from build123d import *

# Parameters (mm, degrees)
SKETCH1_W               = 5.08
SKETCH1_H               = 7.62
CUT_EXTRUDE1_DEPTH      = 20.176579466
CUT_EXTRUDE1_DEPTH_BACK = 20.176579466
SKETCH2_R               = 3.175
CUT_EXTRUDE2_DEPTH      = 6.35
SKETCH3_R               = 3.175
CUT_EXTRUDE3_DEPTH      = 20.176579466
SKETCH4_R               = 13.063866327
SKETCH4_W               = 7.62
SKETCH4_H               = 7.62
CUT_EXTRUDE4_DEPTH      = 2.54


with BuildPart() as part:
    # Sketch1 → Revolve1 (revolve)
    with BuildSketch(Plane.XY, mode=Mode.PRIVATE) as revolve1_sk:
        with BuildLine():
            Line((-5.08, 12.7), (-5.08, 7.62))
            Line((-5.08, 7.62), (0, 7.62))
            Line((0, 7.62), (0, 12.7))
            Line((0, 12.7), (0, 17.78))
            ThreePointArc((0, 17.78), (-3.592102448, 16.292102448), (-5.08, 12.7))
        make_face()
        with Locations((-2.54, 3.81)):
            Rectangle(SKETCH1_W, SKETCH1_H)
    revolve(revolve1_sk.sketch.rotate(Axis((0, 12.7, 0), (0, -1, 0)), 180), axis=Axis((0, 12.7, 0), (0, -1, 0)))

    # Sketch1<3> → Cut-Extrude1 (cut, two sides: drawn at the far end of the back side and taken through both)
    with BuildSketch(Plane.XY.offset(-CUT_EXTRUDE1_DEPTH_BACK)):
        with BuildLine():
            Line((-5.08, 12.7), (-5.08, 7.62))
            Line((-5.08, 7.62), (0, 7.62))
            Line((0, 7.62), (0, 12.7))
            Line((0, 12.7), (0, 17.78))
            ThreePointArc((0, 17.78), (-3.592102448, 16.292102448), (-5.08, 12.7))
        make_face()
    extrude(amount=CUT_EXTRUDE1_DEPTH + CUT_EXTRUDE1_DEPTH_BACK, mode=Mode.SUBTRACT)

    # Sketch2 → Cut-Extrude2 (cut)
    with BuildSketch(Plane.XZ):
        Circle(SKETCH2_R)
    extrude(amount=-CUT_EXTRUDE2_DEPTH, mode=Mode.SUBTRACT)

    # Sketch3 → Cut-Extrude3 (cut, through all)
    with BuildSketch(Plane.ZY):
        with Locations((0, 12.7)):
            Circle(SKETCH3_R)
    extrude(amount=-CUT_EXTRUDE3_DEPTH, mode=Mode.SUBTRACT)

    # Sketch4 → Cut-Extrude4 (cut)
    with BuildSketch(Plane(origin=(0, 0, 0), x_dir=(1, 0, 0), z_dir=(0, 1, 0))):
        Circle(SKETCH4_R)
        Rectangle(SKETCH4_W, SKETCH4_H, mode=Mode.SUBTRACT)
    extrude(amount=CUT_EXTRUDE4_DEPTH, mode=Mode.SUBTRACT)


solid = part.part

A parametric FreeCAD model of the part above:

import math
import FreeCAD as App
import Part
import Sketcher
Q = App.Units.Quantity

doc = App.newDocument("Part")
params = doc.addObject("Spreadsheet::Sheet", "Params")
for row, (alias, value) in enumerate([
    ("sketch1_radius", "0.2 in"),
    ("sketch1_height", "0.5 in"),
    ("revolution_angle", "360 deg"),
    ("sketch2_radius", "0.2 in"),
    ("sketch3_diameter", "0.25 in"),
    ("pocket2_length", "0.25 in"),
    ("sketch4_diameter", "0.25 in"),
    ("sketch5_width", "0.3 in"),
    ("pocket4_length", "0.1 in"),
], start=1):
    params.set(f"A{row}", alias)
    params.set(f"B{row}", "=" + value)
    params.setAlias(f"B{row}", alias)

body = doc.addObject("PartDesign::Body", "Body")

# Sketch on XY plane
sketch1 = body.newObject("Sketcher::SketchObject", "Sketch")
sketch1.AttachmentSupport = (doc.getObject("XY_Plane"), [""])
sketch1.MapMode = "FlatFace"
sketch1.addGeometry(Part.LineSegment(App.Vector(-5.08, 12.7, 0), App.Vector(-5.08, 0, 0)), False)
sketch1.addGeometry(Part.LineSegment(App.Vector(-5.08, 0, 0), App.Vector(0, 0, 0)), False)
sketch1.addGeometry(Part.LineSegment(App.Vector(0, 0, 0), App.Vector(0, 17.78, 0)), False)
sketch1.addGeometry(Part.ArcOfCircle(Part.Circle(App.Vector(0, 12.7, 0), App.Vector(0, 0, 1), 5.08), math.radians(90), math.radians(180)), False)
sketch1.addConstraint(Sketcher.Constraint("Coincident", 0, 2, 1, 1))
sketch1.addConstraint(Sketcher.Constraint("Coincident", 1, 2, 2, 1))
sketch1.addConstraint(Sketcher.Constraint("Coincident", 2, 2, 3, 1))
sketch1.addConstraint(Sketcher.Constraint("Tangent", 3, 2, 0, 1))
sketch1.addConstraint(Sketcher.Constraint("Vertical", 0))
sketch1.addConstraint(Sketcher.Constraint("Horizontal", 1))
sketch1.addConstraint(Sketcher.Constraint("Vertical", 2))
sketch1.addConstraint(Sketcher.Constraint("Coincident", 1, 2, -1, 1))
sketch1.addConstraint(Sketcher.Constraint("PointOnObject", 3, 3, -2))
sketch1.addConstraint(Sketcher.Constraint("Radius", 3, Q("0.2 in")))
sketch1.addConstraint(Sketcher.Constraint("DistanceY", 0, 2, 0, 1, Q("0.5 in")))
sketch1.setExpression("Constraints[9]", "Params.sketch1_radius")
sketch1.setExpression("Constraints[10]", "Params.sketch1_height")
revolution = body.newObject("PartDesign::Revolution", "Revolution")
revolution.Profile = sketch1
revolution.ReferenceAxis = (sketch1, ["V_Axis"])
revolution.setExpression("Angle", "Params.revolution_angle")

# Sketch on XY plane
sketch2 = body.newObject("Sketcher::SketchObject", "Sketch001")
sketch2.AttachmentSupport = (doc.getObject("XY_Plane"), [""])
sketch2.MapMode = "FlatFace"
sketch2.addGeometry(Part.LineSegment(App.Vector(-5.08, 12.7, 0), App.Vector(-5.08, 7.62, 0)), False)
sketch2.addGeometry(Part.LineSegment(App.Vector(-5.08, 7.62, 0), App.Vector(0, 7.62, 0)), False)
sketch2.addGeometry(Part.LineSegment(App.Vector(0, 7.62, 0), App.Vector(0, 17.78, 0)), False)
sketch2.addGeometry(Part.ArcOfCircle(Part.Circle(App.Vector(0, 12.7, 0), App.Vector(0, 0, 1), 5.08), math.radians(90), math.radians(180)), False)
sketch2.addConstraint(Sketcher.Constraint("Coincident", 0, 2, 1, 1))
sketch2.addConstraint(Sketcher.Constraint("Coincident", 1, 2, 2, 1))
sketch2.addConstraint(Sketcher.Constraint("Coincident", 2, 2, 3, 1))
sketch2.addConstraint(Sketcher.Constraint("Tangent", 3, 2, 0, 1))
sketch2.addConstraint(Sketcher.Constraint("Vertical", 0))
sketch2.addConstraint(Sketcher.Constraint("Horizontal", 1))
sketch2.addConstraint(Sketcher.Constraint("Vertical", 2))
sketch2.addConstraint(Sketcher.Constraint("PointOnObject", 3, 3, -2))
sketch2.addConstraint(Sketcher.Constraint("PointOnObject", 1, 2, -2))
sketch2.addConstraint(Sketcher.Constraint("Equal", 1, 0))
sketch2.addConstraint(Sketcher.Constraint("Radius", 3, Q("0.2 in")))
sketch2.addConstraint(Sketcher.Constraint("DistanceY", -1, 1, 3, 3, Q("0.5 in")))
sketch2.setExpression("Constraints[10]", "Params.sketch2_radius")
pocket1 = body.newObject("PartDesign::Pocket", "Pocket")
pocket1.Profile = sketch2
pocket1.Type = "ThroughAll"
pocket1.Midplane = True

# Sketch on XZ plane
sketch3 = body.newObject("Sketcher::SketchObject", "Sketch002")
sketch3.AttachmentSupport = (doc.getObject("XZ_Plane"), [""])
sketch3.MapMode = "FlatFace"
sketch3.addGeometry(Part.Circle(App.Vector(0, 0, 0), App.Vector(0, 0, 1), 3.175), False)
sketch3.addConstraint(Sketcher.Constraint("Coincident", 0, 3, -1, 1))
sketch3.addConstraint(Sketcher.Constraint("Diameter", 0, Q("0.25 in")))
sketch3.setExpression("Constraints[1]", "Params.sketch3_diameter")
pocket2 = body.newObject("PartDesign::Pocket", "Pocket001")
pocket2.Profile = sketch3
pocket2.setExpression("Length", "Params.pocket2_length")

# Sketch on YZ plane
sketch4 = body.newObject("Sketcher::SketchObject", "Sketch003")
sketch4.AttachmentSupport = (doc.getObject("YZ_Plane"), [""])
sketch4.MapMode = "FlatFace"
sketch4.addGeometry(Part.Circle(App.Vector(12.7, 0, 0), App.Vector(0, 0, 1), 3.175), False)
sketch4.addConstraint(Sketcher.Constraint("PointOnObject", 0, 3, -1))
sketch4.addConstraint(Sketcher.Constraint("Diameter", 0, Q("0.25 in")))
sketch4.addConstraint(Sketcher.Constraint("DistanceX", -1, 1, 0, 3, Q("0.5 in")))
sketch4.setExpression("Constraints[1]", "Params.sketch4_diameter")
pocket3 = body.newObject("PartDesign::Pocket", "Pocket002")
pocket3.Profile = sketch4
pocket3.Type = "ThroughAll"
pocket3.Reversed = True

# Sketch on XZ plane
sketch5 = body.newObject("Sketcher::SketchObject", "Sketch004")
sketch5.AttachmentSupport = (doc.getObject("XZ_Plane"), [""])
sketch5.MapMode = "FlatFace"
sketch5.addGeometry(Part.Circle(App.Vector(0, 0, 0), App.Vector(0, 0, 1), 13.063866), False)
sketch5.addGeometry(Part.LineSegment(App.Vector(3.81, 3.81, 0), App.Vector(-3.81, 3.81, 0)), False)
sketch5.addGeometry(Part.LineSegment(App.Vector(-3.81, 3.81, 0), App.Vector(-3.81, -3.81, 0)), False)
sketch5.addGeometry(Part.LineSegment(App.Vector(-3.81, -3.81, 0), App.Vector(3.81, -3.81, 0)), False)
sketch5.addGeometry(Part.LineSegment(App.Vector(3.81, -3.81, 0), App.Vector(3.81, 3.81, 0)), False)
sketch5.addConstraint(Sketcher.Constraint("Coincident", 1, 2, 2, 1))
sketch5.addConstraint(Sketcher.Constraint("Coincident", 2, 2, 3, 1))
sketch5.addConstraint(Sketcher.Constraint("Coincident", 3, 2, 4, 1))
sketch5.addConstraint(Sketcher.Constraint("Coincident", 4, 2, 1, 1))
sketch5.addConstraint(Sketcher.Constraint("Horizontal", 1))
sketch5.addConstraint(Sketcher.Constraint("Vertical", 2))
sketch5.addConstraint(Sketcher.Constraint("Horizontal", 3))
sketch5.addConstraint(Sketcher.Constraint("Vertical", 4))
sketch5.addConstraint(Sketcher.Constraint("Coincident", 0, 3, -1, 1))
sketch5.addConstraint(Sketcher.Constraint("Symmetric", 1, 2, 3, 2, -1, 1))
sketch5.addConstraint(Sketcher.Constraint("Equal", 3, 2))
sketch5.addConstraint(Sketcher.Constraint("DistanceX", 1, 2, 1, 1, Q("0.3 in")))
sketch5.addConstraint(Sketcher.Constraint("Diameter", 0, Q("26.127733 mm")))
sketch5.setExpression("Constraints[11]", "Params.sketch5_width")
pocket4 = body.newObject("PartDesign::Pocket", "Pocket003")
pocket4.Profile = sketch5
pocket4.setExpression("Length", "Params.pocket4_length")

doc.recompute()
